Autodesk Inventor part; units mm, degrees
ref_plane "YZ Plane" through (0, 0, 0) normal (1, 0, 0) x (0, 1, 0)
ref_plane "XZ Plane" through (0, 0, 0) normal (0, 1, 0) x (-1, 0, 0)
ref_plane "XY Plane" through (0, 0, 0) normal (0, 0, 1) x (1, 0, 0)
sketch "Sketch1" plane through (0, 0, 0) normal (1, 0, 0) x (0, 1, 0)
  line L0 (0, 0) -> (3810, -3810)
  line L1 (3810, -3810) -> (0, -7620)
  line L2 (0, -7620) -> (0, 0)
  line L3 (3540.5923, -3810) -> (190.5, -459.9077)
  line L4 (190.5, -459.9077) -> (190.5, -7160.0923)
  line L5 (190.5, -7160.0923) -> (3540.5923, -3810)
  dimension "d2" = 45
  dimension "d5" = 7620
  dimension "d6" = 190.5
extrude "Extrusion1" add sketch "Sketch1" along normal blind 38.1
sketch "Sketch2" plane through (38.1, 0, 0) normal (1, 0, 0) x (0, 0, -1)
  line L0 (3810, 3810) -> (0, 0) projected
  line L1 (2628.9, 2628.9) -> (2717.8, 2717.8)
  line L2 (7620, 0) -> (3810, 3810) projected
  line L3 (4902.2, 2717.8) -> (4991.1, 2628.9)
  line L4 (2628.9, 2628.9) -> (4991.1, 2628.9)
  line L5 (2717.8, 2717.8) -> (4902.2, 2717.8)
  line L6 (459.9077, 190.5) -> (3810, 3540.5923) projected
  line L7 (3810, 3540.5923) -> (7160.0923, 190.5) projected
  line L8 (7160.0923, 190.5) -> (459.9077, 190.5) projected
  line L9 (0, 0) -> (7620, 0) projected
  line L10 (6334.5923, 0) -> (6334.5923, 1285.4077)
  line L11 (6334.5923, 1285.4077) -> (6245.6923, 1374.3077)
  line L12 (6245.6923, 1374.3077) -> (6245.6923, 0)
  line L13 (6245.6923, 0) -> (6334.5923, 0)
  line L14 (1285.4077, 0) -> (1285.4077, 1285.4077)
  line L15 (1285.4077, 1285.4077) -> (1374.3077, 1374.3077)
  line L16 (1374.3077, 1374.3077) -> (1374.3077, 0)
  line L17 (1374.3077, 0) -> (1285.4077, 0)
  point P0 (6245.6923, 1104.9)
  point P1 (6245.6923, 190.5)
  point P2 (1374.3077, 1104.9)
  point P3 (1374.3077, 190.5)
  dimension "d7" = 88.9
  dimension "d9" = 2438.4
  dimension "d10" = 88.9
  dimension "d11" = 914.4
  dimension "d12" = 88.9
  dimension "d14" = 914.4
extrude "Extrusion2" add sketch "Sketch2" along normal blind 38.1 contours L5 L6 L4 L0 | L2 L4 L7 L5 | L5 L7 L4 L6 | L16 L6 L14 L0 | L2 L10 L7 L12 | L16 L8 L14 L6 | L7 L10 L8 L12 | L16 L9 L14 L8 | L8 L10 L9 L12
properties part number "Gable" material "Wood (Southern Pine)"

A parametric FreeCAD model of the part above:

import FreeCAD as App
import Part
import Sketcher
Q = App.Units.Quantity

doc = App.newDocument("Part")
body = doc.addObject("PartDesign::Body", "Body")

# Sketch on YZ plane
sketch1 = doc.addObject("Sketcher::SketchObject", "Sketch")
body.addObject(sketch1)
sketch1.AttachmentSupport = (doc.YZ_Plane, [""])
sketch1.MapMode = "FlatFace"
sketch1.addGeometry(Part.LineSegment(App.Vector(3810, -3810, 0), App.Vector(0, 0, 0)), False)
sketch1.addGeometry(Part.LineSegment(App.Vector(0, 0, 0), App.Vector(0, -7620, 0)), False)
sketch1.addGeometry(Part.LineSegment(App.Vector(0, -7620, 0), App.Vector(3810, -3810, 0)), False)
sketch1.addGeometry(Part.LineSegment(App.Vector(190, -460, 0), App.Vector(3541, -3810, 0)), False)
sketch1.addGeometry(Part.LineSegment(App.Vector(3541, -3810, 0), App.Vector(190, -7160, 0)), False)
sketch1.addGeometry(Part.LineSegment(App.Vector(190, -7160, 0), App.Vector(190, -460, 0)), False)
sketch1.addConstraint(Sketcher.Constraint("Coincident", 0, 2, 1, 1))
sketch1.addConstraint(Sketcher.Constraint("Coincident", 1, 2, 2, 1))
sketch1.addConstraint(Sketcher.Constraint("Coincident", 2, 2, 0, 1))
sketch1.addConstraint(Sketcher.Constraint("Coincident", 3, 2, 4, 1))
sketch1.addConstraint(Sketcher.Constraint("Coincident", 4, 2, 5, 1))
sketch1.addConstraint(Sketcher.Constraint("Coincident", 5, 2, 3, 1))
sketch1.addConstraint(Sketcher.Constraint("Vertical", 1))
sketch1.addConstraint(Sketcher.Constraint("Vertical", 5))
sketch1.addConstraint(Sketcher.Constraint("Coincident", 0, 2, -1, 1))
sketch1.addConstraint(Sketcher.Constraint("Perpendicular", 0, 2))
sketch1.addConstraint(Sketcher.Constraint("Perpendicular", 2, 3))
sketch1.addConstraint(Sketcher.Constraint("Perpendicular", 3, 4))
sketch1.addConstraint(Sketcher.Constraint("Horizontal", 2, 2, 3, 2))
sketch1.addConstraint(Sketcher.Constraint("Equal", 0, 2))
sketch1.addConstraint(Sketcher.Constraint("DistanceY", 1, 2, 1, 1, Q("300 in")))
sketch1.addConstraint(Sketcher.Constraint("DistanceX", -1, 1, 4, 2, Q("7.5 in")))
sketch1.addConstraint(Sketcher.Constraint("DistanceY", 5, 1, 5, 2, Q("263.7868 in")))
pad1 = doc.addObject("PartDesign::Pad", "Pad")
body.addObject(pad1)
pad1.Profile = sketch1
pad1.Length = Q("1.5 in")

# Sketch on YZ plane
sketch2 = doc.addObject("Sketcher::SketchObject", "Sketch001")
body.addObject(sketch2)
sketch2.AttachmentSupport = (doc.YZ_Plane, [""])
sketch2.MapMode = "FlatFace"
sketch2.AttachmentOffset = App.Placement(App.Vector(0, 0, 1.5 * 25.4), App.Rotation())
sketch2.addGeometry(Part.LineSegment(App.Vector(2718, -2718, 0), App.Vector(2629, -2629, 0)), False)
sketch2.addGeometry(Part.LineSegment(App.Vector(2629, -2629, 0), App.Vector(2629, -4991, 0)), False)
sketch2.addGeometry(Part.LineSegment(App.Vector(2629, -4991, 0), App.Vector(2718, -4902, 0)), False)
sketch2.addGeometry(Part.LineSegment(App.Vector(2718, -4902, 0), App.Vector(2718, -2718, 0)), False)
sketch2.addGeometry(Part.LineSegment(App.Vector(1374, -1374, 0), App.Vector(1285, -1285, 0)), False)
sketch2.addGeometry(Part.LineSegment(App.Vector(1285, -1285, 0), App.Vector(0, -1285, 0)), False)
sketch2.addGeometry(Part.LineSegment(App.Vector(0, -1285, 0), App.Vector(0, -1374, 0)), False)
sketch2.addGeometry(Part.LineSegment(App.Vector(0, -1374, 0), App.Vector(1374, -1374, 0)), False)
sketch2.addGeometry(Part.LineSegment(App.Vector(1285, -6335, 0), App.Vector(1374, -6246, 0)), False)
sketch2.addGeometry(Part.LineSegment(App.Vector(1374, -6246, 0), App.Vector(0, -6246, 0)), False)
sketch2.addGeometry(Part.LineSegment(App.Vector(0, -6246, 0), App.Vector(0, -6335, 0)), False)
sketch2.addGeometry(Part.LineSegment(App.Vector(0, -6335, 0), App.Vector(1285, -6335, 0)), False)
sketch2.addConstraint(Sketcher.Constraint("Coincident", 0, 2, 1, 1))
sketch2.addConstraint(Sketcher.Constraint("Coincident", 1, 2, 2, 1))
sketch2.addConstraint(Sketcher.Constraint("Coincident", 2, 2, 3, 1))
sketch2.addConstraint(Sketcher.Constraint("Coincident", 3, 2, 0, 1))
sketch2.addConstraint(Sketcher.Constraint("Coincident", 4, 2, 5, 1))
sketch2.addConstraint(Sketcher.Constraint("Coincident", 5, 2, 6, 1))
sketch2.addConstraint(Sketcher.Constraint("Coincident", 6, 2, 7, 1))
sketch2.addConstraint(Sketcher.Constraint("Coincident", 7, 2, 4, 1))
sketch2.addConstraint(Sketcher.Constraint("Coincident", 8, 2, 9, 1))
sketch2.addConstraint(Sketcher.Constraint("Coincident", 9, 2, 10, 1))
sketch2.addConstraint(Sketcher.Constraint("Coincident", 10, 2, 11, 1))
sketch2.addConstraint(Sketcher.Constraint("Coincident", 11, 2, 8, 1))
sketch2.addConstraint(Sketcher.Constraint("Vertical", 1))
sketch2.addConstraint(Sketcher.Constraint("Vertical", 3))
sketch2.addConstraint(Sketcher.Constraint("Horizontal", 5))
sketch2.addConstraint(Sketcher.Constraint("Vertical", 6))
sketch2.addConstraint(Sketcher.Constraint("Horizontal", 7))
sketch2.addConstraint(Sketcher.Constraint("Horizontal", 9))
sketch2.addConstraint(Sketcher.Constraint("Vertical", 10))
sketch2.addConstraint(Sketcher.Constraint("Horizontal", 11))
sketch2.addConstraint(Sketcher.Constraint("PointOnObject", 5, 2, -2))
sketch2.addConstraint(Sketcher.Constraint("PointOnObject", 9, 2, -2))
sketch2.addConstraint(Sketcher.Constraint("Perpendicular", 0, 2))
sketch2.addConstraint(Sketcher.Constraint("Perpendicular", 2, 4))
sketch2.addConstraint(Sketcher.Constraint("Perpendicular", 4, 8))
sketch2.addConstraint(Sketcher.Constraint("Vertical", 7, 2, 8, 2))
sketch2.addConstraint(Sketcher.Constraint("Vertical", 4, 2, 11, 2))
sketch2.addConstraint(Sketcher.Constraint("Equal", 6, 10))
sketch2.addConstraint(Sketcher.Constraint("Equal", 2, 4))
sketch2.addConstraint(Sketcher.Constraint("DistanceY", 6, 2, 6, 1, Q("3.5 in")))
sketch2.addConstraint(Sketcher.Constraint("DistanceY", 1, 2, 1, 1, Q("93 in")))
sketch2.addConstraint(Sketcher.Constraint("DistanceX", -1, 1, 2, 2, Q("107 in")))
sketch2.addConstraint(Sketcher.Constraint("DistanceY", 2, 2, -1, 1, Q("193 in")))
sketch2.addConstraint(Sketcher.Constraint("DistanceX", 5, 2, 5, 1, Q("50.6066 in")))
sketch2.addConstraint(Sketcher.Constraint("DistanceY", 4, 2, -1, 1, Q("50.6066 in")))
sketch2.addConstraint(Sketcher.Constraint("DistanceY", 8, 2, -1, 1, Q("245.8934 in")))
pad2 = doc.addObject("PartDesign::Pad", "Pad001")
body.addObject(pad2)
pad2.Profile = sketch2
pad2.Length = Q("1.5 in")

doc.recompute()
